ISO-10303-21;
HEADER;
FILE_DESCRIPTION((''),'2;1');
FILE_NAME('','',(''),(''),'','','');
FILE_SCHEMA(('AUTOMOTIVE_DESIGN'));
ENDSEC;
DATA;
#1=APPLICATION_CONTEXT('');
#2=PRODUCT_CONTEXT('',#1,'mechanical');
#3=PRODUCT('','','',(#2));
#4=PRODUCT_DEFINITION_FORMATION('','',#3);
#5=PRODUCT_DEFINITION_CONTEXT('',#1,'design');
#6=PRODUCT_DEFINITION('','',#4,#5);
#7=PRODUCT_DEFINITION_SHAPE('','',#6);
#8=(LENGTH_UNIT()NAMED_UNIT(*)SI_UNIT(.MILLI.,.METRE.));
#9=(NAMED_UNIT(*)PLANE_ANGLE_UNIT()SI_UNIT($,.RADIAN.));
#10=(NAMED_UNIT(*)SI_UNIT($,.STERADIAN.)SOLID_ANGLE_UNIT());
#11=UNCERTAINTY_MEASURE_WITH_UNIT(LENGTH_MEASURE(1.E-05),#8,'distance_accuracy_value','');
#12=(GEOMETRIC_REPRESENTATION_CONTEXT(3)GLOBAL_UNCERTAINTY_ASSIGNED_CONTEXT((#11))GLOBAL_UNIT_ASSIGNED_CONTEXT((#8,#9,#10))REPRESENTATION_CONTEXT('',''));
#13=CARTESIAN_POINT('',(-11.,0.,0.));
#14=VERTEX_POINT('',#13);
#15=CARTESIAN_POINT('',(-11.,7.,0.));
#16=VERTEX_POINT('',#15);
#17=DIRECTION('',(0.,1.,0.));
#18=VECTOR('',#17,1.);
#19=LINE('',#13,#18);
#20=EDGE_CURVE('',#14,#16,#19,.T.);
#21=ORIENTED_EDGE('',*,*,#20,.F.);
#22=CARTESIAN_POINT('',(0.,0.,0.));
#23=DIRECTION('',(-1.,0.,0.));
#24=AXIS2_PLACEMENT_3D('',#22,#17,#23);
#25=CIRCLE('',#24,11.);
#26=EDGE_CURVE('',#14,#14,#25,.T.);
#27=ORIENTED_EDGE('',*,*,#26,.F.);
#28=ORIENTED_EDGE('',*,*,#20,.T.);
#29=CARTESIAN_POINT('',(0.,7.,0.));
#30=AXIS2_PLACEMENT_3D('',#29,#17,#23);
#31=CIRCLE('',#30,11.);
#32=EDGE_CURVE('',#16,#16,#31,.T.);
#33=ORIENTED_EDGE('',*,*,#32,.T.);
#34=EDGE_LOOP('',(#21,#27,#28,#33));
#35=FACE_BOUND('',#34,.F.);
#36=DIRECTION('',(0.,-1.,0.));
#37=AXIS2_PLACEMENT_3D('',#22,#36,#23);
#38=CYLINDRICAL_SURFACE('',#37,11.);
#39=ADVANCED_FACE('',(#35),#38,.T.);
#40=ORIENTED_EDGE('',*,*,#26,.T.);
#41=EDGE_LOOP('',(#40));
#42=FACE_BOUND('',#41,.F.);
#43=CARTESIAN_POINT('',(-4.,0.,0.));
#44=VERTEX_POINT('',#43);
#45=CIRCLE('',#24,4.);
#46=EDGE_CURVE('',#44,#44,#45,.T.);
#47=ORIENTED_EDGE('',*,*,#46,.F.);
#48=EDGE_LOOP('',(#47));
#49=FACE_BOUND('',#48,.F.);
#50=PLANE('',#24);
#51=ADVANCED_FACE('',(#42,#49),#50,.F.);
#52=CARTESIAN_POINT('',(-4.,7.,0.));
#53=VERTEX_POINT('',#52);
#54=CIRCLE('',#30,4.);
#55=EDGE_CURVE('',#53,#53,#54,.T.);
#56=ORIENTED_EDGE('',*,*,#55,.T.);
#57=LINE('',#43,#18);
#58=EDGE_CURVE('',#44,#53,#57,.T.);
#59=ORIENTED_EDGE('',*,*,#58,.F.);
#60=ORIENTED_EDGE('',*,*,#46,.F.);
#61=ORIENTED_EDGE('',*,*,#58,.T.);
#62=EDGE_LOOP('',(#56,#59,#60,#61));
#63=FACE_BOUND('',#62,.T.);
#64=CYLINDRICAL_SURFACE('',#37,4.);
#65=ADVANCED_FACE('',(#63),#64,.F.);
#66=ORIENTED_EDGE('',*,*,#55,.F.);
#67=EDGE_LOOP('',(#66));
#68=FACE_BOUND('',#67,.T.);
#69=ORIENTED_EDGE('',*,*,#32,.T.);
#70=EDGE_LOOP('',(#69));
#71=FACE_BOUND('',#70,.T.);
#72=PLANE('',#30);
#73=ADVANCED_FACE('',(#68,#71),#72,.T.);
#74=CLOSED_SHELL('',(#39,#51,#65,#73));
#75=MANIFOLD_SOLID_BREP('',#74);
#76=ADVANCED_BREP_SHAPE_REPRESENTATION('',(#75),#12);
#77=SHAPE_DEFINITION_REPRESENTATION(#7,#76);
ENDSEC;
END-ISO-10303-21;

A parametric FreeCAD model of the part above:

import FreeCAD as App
import Part
import Sketcher
from FreeCAD import Vector
Q = App.Units.Quantity

doc = App.newDocument("Part")
body = doc.addObject("PartDesign::Body", "Body")

sketch1 = doc.addObject("Sketcher::SketchObject", "Sketch")
body.addObject(sketch1)
sketch1.AttachmentSupport = (doc.XZ_Plane, [""])
sketch1.MapMode = "FlatFace"
sketch1.addGeometry(Part.Circle(Vector(0, 0, 0), Vector(0, 0, 1), 11), False)
sketch1.addGeometry(Part.Circle(Vector(0, 0, 0), Vector(0, 0, 1), 4), False)
sketch1.addConstraint(Sketcher.Constraint("Coincident", 0, 3, -1, 1))
sketch1.addConstraint(Sketcher.Constraint("Coincident", 1, 3, -1, 1))
sketch1.addConstraint(Sketcher.Constraint("Diameter", 0, Q("22 mm")))
sketch1.addConstraint(Sketcher.Constraint("Diameter", 1, Q("8 mm")))
pad1 = doc.addObject("PartDesign::Pad", "Pad")
body.addObject(pad1)
pad1.Profile = sketch1
pad1.Length = 7
pad1.Reversed = True

doc.recompute()
